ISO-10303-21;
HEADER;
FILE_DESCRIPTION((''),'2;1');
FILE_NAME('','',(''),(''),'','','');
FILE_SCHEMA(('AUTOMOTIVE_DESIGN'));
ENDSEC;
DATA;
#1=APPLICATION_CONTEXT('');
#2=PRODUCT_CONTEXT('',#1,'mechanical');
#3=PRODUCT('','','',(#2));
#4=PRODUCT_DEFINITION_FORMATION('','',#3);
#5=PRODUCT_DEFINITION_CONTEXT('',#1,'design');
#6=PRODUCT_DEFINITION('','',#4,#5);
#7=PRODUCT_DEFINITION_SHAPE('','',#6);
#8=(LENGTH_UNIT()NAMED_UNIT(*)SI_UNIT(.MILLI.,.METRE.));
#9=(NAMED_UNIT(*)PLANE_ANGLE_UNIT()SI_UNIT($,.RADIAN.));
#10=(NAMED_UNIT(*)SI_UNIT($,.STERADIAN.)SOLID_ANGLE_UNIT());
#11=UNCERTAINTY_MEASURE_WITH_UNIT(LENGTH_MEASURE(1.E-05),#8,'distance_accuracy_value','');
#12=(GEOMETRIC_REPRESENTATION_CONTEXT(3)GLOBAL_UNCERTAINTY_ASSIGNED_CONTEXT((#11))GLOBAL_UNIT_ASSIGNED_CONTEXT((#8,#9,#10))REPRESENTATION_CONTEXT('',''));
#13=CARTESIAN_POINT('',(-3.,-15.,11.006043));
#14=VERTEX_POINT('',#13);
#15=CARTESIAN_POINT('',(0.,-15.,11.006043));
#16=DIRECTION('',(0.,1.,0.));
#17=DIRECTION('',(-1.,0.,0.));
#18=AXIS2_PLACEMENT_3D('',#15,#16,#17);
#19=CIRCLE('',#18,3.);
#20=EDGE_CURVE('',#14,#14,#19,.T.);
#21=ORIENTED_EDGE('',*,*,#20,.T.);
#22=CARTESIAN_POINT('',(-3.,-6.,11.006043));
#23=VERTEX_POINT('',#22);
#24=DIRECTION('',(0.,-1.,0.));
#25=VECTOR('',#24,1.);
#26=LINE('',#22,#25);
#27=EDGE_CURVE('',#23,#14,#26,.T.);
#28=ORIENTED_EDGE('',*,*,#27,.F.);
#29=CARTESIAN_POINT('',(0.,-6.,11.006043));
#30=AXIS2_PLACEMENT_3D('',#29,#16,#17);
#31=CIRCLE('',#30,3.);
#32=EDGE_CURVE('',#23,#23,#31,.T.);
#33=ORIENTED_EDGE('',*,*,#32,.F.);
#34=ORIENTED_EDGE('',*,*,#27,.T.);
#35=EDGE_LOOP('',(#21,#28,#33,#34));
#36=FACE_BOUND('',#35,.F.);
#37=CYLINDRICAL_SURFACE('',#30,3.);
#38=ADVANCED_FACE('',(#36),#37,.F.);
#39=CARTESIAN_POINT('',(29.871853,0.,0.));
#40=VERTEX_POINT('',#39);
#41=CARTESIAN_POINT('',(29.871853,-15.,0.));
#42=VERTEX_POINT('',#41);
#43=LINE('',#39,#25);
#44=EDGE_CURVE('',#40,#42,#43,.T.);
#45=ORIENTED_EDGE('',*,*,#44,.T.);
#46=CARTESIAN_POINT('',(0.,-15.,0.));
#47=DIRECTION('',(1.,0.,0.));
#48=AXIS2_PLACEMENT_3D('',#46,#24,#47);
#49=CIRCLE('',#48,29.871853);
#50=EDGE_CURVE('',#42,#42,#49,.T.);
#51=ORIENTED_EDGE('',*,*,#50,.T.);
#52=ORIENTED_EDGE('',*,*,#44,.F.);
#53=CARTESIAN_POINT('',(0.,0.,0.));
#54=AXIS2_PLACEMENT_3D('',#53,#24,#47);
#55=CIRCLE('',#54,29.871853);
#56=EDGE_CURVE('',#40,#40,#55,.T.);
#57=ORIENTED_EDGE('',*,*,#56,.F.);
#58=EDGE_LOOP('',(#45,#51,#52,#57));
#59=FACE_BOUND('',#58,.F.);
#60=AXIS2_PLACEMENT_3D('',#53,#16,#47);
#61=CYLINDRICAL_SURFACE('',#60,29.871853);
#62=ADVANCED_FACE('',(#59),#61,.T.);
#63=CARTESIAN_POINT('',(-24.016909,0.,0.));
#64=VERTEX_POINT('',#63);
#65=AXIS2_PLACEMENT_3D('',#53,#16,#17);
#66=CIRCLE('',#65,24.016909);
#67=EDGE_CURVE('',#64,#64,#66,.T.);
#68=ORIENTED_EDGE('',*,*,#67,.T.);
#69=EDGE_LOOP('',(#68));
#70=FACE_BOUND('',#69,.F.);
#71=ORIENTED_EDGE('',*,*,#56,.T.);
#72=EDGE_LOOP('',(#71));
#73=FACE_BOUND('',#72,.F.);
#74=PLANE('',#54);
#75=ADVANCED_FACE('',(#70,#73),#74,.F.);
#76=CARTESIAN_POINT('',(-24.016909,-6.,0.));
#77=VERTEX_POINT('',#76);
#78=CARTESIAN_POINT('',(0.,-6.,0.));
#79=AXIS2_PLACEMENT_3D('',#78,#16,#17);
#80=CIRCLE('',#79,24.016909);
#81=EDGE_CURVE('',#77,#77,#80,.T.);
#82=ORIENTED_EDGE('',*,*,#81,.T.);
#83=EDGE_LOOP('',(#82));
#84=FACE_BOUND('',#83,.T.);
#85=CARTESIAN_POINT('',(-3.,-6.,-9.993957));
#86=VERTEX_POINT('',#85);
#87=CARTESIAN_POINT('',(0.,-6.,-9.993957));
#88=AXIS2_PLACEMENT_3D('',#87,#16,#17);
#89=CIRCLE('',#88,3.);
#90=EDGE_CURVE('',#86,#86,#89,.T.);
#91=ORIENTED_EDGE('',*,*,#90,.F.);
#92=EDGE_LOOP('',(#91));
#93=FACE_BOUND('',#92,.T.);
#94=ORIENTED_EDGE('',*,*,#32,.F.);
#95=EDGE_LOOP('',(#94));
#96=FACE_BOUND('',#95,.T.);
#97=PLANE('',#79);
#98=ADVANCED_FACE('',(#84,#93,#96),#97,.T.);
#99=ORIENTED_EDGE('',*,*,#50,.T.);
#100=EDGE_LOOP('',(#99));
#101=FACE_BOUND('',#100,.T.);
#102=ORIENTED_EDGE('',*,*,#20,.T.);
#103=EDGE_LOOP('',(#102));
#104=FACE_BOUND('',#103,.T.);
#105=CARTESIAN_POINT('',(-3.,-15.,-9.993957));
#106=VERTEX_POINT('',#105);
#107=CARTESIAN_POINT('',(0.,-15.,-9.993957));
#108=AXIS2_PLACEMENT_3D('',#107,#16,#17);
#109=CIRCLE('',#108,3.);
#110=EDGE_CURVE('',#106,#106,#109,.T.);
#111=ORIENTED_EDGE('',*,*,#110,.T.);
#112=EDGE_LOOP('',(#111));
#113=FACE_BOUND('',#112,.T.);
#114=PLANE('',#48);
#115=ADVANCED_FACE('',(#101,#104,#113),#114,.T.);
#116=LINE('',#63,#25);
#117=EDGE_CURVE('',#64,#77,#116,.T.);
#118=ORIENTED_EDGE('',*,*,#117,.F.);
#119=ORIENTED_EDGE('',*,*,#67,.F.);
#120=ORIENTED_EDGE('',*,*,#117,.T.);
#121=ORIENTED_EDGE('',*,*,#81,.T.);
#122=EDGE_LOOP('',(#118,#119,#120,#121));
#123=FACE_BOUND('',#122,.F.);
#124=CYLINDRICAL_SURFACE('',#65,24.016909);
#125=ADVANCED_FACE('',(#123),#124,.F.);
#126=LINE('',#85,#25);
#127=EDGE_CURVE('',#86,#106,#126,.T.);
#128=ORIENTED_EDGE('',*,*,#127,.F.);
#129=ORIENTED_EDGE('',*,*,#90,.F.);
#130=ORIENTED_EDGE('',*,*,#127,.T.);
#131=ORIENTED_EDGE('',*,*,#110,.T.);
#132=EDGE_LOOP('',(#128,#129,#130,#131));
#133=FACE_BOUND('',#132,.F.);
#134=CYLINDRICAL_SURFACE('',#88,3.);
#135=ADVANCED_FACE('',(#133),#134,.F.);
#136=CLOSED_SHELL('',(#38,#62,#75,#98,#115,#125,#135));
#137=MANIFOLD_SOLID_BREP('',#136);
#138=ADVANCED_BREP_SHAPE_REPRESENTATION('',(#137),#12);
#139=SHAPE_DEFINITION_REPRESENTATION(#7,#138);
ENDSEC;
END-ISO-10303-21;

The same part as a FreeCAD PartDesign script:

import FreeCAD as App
import Part
import Sketcher
Q = App.Units.Quantity

doc = App.newDocument("Part")
params = doc.addObject("Spreadsheet::Sheet", "Params")
for row, (alias, value) in enumerate([
    ("pad1_length", "15 mm"),
    ("pocket1_length", "6 mm"),
    ("sketch3_diameter", "6 mm"),
    ("pocket2_length", "25 mm"),
], start=1):
    params.set(f"A{row}", alias)
    params.set(f"B{row}", "=" + value)
    params.setAlias(f"B{row}", alias)

body = doc.addObject("PartDesign::Body", "Body")

sketch1 = doc.addObject("Sketcher::SketchObject", "Sketch")
body.addObject(sketch1)
sketch1.AttachmentSupport = (doc.XZ_Plane, [""])
sketch1.MapMode = "FlatFace"
sketch1.addGeometry(Part.Circle(App.Vector(0, 0, 0), App.Vector(0, 0, 1), 30), False)
sketch1.addConstraint(Sketcher.Constraint("Coincident", 0, 3, -1, 1))
sketch1.addConstraint(Sketcher.Constraint("Diameter", 0, Q("59.743706 mm")))
pad1 = doc.addObject("PartDesign::Pad", "Pad")
body.addObject(pad1)
pad1.Profile = sketch1
pad1.setExpression("Length", "Params.pad1_length")

sketch2 = doc.addObject("Sketcher::SketchObject", "Sketch001")
body.addObject(sketch2)
sketch2.AttachmentSupport = (doc.XZ_Plane, [""])
sketch2.MapMode = "FlatFace"
sketch2.addGeometry(Part.Circle(App.Vector(0, 0, 0), App.Vector(0, 0, 1), 24), False)
sketch2.addConstraint(Sketcher.Constraint("Coincident", 0, 3, -1, 1))
sketch2.addConstraint(Sketcher.Constraint("Diameter", 0, Q("48.033818 mm")))
pocket1 = doc.addObject("PartDesign::Pocket", "Pocket")
body.addObject(pocket1)
pocket1.Profile = sketch2
pocket1.setExpression("Length", "Params.pocket1_length")
pocket1.Reversed = True

sketch3 = doc.addObject("Sketcher::SketchObject", "Sketch002")
body.addObject(sketch3)
sketch3.AttachmentSupport = (doc.XZ_Plane, [""])
sketch3.MapMode = "FlatFace"
sketch3.AttachmentOffset = App.Placement(App.Vector(0, 0, 6), App.Rotation())
sketch3.addGeometry(Part.Circle(App.Vector(0, 11, 0), App.Vector(0, 0, 1), 3), False)
sketch3.addGeometry(Part.Circle(App.Vector(0, -10, 0), App.Vector(0, 0, 1), 3), False)
sketch3.addConstraint(Sketcher.Constraint("Equal", 0, 1))
sketch3.addConstraint(Sketcher.Constraint("PointOnObject", 0, 3, -2))
sketch3.addConstraint(Sketcher.Constraint("PointOnObject", 1, 3, -2))
sketch3.addConstraint(Sketcher.Constraint("Diameter", 0, Q("6 mm")))
sketch3.addConstraint(Sketcher.Constraint("DistanceY", 1, 3, 0, 3, Q("21 mm")))
sketch3.addConstraint(Sketcher.Constraint("DistanceY", -1, 1, 0, 3, Q("11.006043 mm")))
sketch3.setExpression("Constraints[3]", "Params.sketch3_diameter")
pocket2 = doc.addObject("PartDesign::Pocket", "Pocket001")
body.addObject(pocket2)
pocket2.Profile = sketch3
pocket2.setExpression("Length", "Params.pocket2_length")
pocket2.Reversed = True

doc.recompute()
